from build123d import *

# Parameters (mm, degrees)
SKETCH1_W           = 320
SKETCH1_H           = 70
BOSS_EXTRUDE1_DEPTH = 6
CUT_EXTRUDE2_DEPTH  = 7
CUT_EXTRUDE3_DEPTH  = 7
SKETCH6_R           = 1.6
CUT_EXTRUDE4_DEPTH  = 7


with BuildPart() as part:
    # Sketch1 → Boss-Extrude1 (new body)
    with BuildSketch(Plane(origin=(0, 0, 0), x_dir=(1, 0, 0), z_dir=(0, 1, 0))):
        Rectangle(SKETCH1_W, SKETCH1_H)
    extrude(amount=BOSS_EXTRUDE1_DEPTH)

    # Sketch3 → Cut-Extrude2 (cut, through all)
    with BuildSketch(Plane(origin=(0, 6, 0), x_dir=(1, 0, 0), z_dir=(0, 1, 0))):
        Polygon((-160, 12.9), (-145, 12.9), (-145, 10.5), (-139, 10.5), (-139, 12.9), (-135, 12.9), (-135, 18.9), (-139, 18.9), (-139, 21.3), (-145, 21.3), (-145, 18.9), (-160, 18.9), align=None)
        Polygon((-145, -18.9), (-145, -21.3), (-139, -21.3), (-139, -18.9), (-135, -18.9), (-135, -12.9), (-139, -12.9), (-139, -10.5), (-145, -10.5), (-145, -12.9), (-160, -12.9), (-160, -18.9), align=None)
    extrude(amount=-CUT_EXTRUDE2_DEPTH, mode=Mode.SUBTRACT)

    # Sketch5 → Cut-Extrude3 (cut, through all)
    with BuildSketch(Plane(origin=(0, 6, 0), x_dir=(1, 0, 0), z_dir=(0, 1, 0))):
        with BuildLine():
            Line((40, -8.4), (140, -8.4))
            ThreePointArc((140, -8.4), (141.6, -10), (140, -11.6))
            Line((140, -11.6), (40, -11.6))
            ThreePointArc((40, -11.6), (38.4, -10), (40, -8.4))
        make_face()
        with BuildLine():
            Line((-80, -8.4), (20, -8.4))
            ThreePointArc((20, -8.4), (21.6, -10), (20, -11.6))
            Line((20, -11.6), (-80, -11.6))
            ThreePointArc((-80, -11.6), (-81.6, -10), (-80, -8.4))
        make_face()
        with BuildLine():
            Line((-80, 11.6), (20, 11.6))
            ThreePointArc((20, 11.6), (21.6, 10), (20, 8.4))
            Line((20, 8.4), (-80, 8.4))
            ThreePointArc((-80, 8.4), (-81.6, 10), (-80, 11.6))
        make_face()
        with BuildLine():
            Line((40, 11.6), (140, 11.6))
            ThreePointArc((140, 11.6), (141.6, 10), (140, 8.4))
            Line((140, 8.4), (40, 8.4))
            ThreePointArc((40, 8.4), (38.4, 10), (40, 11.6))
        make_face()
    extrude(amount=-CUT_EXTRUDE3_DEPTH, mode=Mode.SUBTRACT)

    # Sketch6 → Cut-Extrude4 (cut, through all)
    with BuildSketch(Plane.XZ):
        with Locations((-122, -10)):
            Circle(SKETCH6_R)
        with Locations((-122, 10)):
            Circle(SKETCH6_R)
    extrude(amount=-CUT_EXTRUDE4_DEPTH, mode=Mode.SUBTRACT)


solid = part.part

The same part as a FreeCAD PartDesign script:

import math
import FreeCAD as App
import Part
import Sketcher
Q = App.Units.Quantity

doc = App.newDocument("Part")
body = doc.addObject("PartDesign::Body", "Body")

# Sketch on XZ plane
sketch1 = body.newObject("Sketcher::SketchObject", "Sketch")
sketch1.AttachmentSupport = (doc.getObject("XZ_Plane"), [""])
sketch1.MapMode = "FlatFace"
sketch1.addGeometry(Part.LineSegment(App.Vector(-160, -35, 0), App.Vector(-160, 35, 0)), False)
sketch1.addGeometry(Part.LineSegment(App.Vector(-160, 35, 0), App.Vector(160, 35, 0)), False)
sketch1.addGeometry(Part.LineSegment(App.Vector(160, 35, 0), App.Vector(160, -35, 0)), False)
sketch1.addGeometry(Part.LineSegment(App.Vector(160, -35, 0), App.Vector(-160, -35, 0)), False)
sketch1.addConstraint(Sketcher.Constraint("Coincident", 0, 2, 1, 1))
sketch1.addConstraint(Sketcher.Constraint("Coincident", 1, 2, 2, 1))
sketch1.addConstraint(Sketcher.Constraint("Coincident", 2, 2, 3, 1))
sketch1.addConstraint(Sketcher.Constraint("Coincident", 3, 2, 0, 1))
sketch1.addConstraint(Sketcher.Constraint("Vertical", 0))
sketch1.addConstraint(Sketcher.Constraint("Horizontal", 1))
sketch1.addConstraint(Sketcher.Constraint("Vertical", 2))
sketch1.addConstraint(Sketcher.Constraint("Horizontal", 3))
sketch1.addConstraint(Sketcher.Constraint("Symmetric", 0, 2, 2, 2, -1, 1))
sketch1.addConstraint(Sketcher.Constraint("DistanceX", 1, 1, 1, 2, Q("320 mm")))
sketch1.addConstraint(Sketcher.Constraint("DistanceY", 0, 1, 0, 2, Q("70 mm")))
pad1 = body.newObject("PartDesign::Pad", "Pad")
pad1.Profile = sketch1
pad1.Length = 6
pad1.Reversed = True

# Sketch on XZ plane
sketch2 = body.newObject("Sketcher::SketchObject", "Sketch001")
sketch2.AttachmentSupport = (doc.getObject("XZ_Plane"), [""])
sketch2.MapMode = "FlatFace"
sketch2.AttachmentOffset = App.Placement(App.Vector(0, 0, -6), App.Rotation())
sketch2.addGeometry(Part.LineSegment(App.Vector(-160, -12.9, 0), App.Vector(-145, -12.9, 0)), False)
sketch2.addGeometry(Part.LineSegment(App.Vector(-145, -12.9, 0), App.Vector(-145, -10.5, 0)), False)
sketch2.addGeometry(Part.LineSegment(App.Vector(-145, -10.5, 0), App.Vector(-139, -10.5, 0)), False)
sketch2.addGeometry(Part.LineSegment(App.Vector(-139, -10.5, 0), App.Vector(-139, -12.9, 0)), False)
sketch2.addGeometry(Part.LineSegment(App.Vector(-139, -12.9, 0), App.Vector(-135, -12.9, 0)), False)
sketch2.addGeometry(Part.LineSegment(App.Vector(-135, -12.9, 0), App.Vector(-135, -18.9, 0)), False)
sketch2.addGeometry(Part.LineSegment(App.Vector(-135, -18.9, 0), App.Vector(-139, -18.9, 0)), False)
sketch2.addGeometry(Part.LineSegment(App.Vector(-139, -18.9, 0), App.Vector(-139, -21.3, 0)), False)
sketch2.addGeometry(Part.LineSegment(App.Vector(-139, -21.3, 0), App.Vector(-145, -21.3, 0)), False)
sketch2.addGeometry(Part.LineSegment(App.Vector(-145, -21.3, 0), App.Vector(-145, -18.9, 0)), False)
sketch2.addGeometry(Part.LineSegment(App.Vector(-145, -18.9, 0), App.Vector(-160, -18.9, 0)), False)
sketch2.addGeometry(Part.LineSegment(App.Vector(-160, -18.9, 0), App.Vector(-160, -12.9, 0)), False)
sketch2.addGeometry(Part.LineSegment(App.Vector(-145, 18.9, 0), App.Vector(-145, 21.3, 0)), False)
sketch2.addGeometry(Part.LineSegment(App.Vector(-145, 21.3, 0), App.Vector(-139, 21.3, 0)), False)
sketch2.addGeometry(Part.LineSegment(App.Vector(-139, 21.3, 0), App.Vector(-139, 18.9, 0)), False)
sketch2.addGeometry(Part.LineSegment(App.Vector(-139, 18.9, 0), App.Vector(-135, 18.9, 0)), False)
sketch2.addGeometry(Part.LineSegment(App.Vector(-135, 18.9, 0), App.Vector(-135, 12.9, 0)), False)
sketch2.addGeometry(Part.LineSegment(App.Vector(-135, 12.9, 0), App.Vector(-139, 12.9, 0)), False)
sketch2.addGeometry(Part.LineSegment(App.Vector(-139, 12.9, 0), App.Vector(-139, 10.5, 0)), False)
sketch2.addGeometry(Part.LineSegment(App.Vector(-139, 10.5, 0), App.Vector(-145, 10.5, 0)), False)
sketch2.addGeometry(Part.LineSegment(App.Vector(-145, 10.5, 0), App.Vector(-145, 12.9, 0)), False)
sketch2.addGeometry(Part.LineSegment(App.Vector(-145, 12.9, 0), App.Vector(-160, 12.9, 0)), False)
sketch2.addGeometry(Part.LineSegment(App.Vector(-160, 12.9, 0), App.Vector(-160, 18.9, 0)), False)
sketch2.addGeometry(Part.LineSegment(App.Vector(-160, 18.9, 0), App.Vector(-145, 18.9, 0)), False)
sketch2.addConstraint(Sketcher.Constraint("Coincident", 0, 2, 1, 1))
sketch2.addConstraint(Sketcher.Constraint("Coincident", 1, 2, 2, 1))
sketch2.addConstraint(Sketcher.Constraint("Coincident", 2, 2, 3, 1))
sketch2.addConstraint(Sketcher.Constraint("Coincident", 3, 2, 4, 1))
sketch2.addConstraint(Sketcher.Constraint("Coincident", 4, 2, 5, 1))
sketch2.addConstraint(Sketcher.Constraint("Coincident", 5, 2, 6, 1))
sketch2.addConstraint(Sketcher.Constraint("Coincident", 6, 2, 7, 1))
sketch2.addConstraint(Sketcher.Constraint("Coincident", 7, 2, 8, 1))
sketch2.addConstraint(Sketcher.Constraint("Coincident", 8, 2, 9, 1))
sketch2.addConstraint(Sketcher.Constraint("Coincident", 9, 2, 10, 1))
sketch2.addConstraint(Sketcher.Constraint("Coincident", 10, 2, 11, 1))
sketch2.addConstraint(Sketcher.Constraint("Coincident", 11, 2, 0, 1))
sketch2.addConstraint(Sketcher.Constraint("Coincident", 12, 2, 13, 1))
sketch2.addConstraint(Sketcher.Constraint("Coincident", 13, 2, 14, 1))
sketch2.addConstraint(Sketcher.Constraint("Coincident", 14, 2, 15, 1))
sketch2.addConstraint(Sketcher.Constraint("Coincident", 15, 2, 16, 1))
sketch2.addConstraint(Sketcher.Constraint("Coincident", 16, 2, 17, 1))
sketch2.addConstraint(Sketcher.Constraint("Coincident", 17, 2, 18, 1))
sketch2.addConstraint(Sketcher.Constraint("Coincident", 18, 2, 19, 1))
sketch2.addConstraint(Sketcher.Constraint("Coincident", 19, 2, 20, 1))
sketch2.addConstraint(Sketcher.Constraint("Coincident", 20, 2, 21, 1))
sketch2.addConstraint(Sketcher.Constraint("Coincident", 21, 2, 22, 1))
sketch2.addConstraint(Sketcher.Constraint("Coincident", 22, 2, 23, 1))
sketch2.addConstraint(Sketcher.Constraint("Coincident", 23, 2, 12, 1))
sketch2.addConstraint(Sketcher.Constraint("Horizontal", 0))
sketch2.addConstraint(Sketcher.Constraint("Vertical", 1))
sketch2.addConstraint(Sketcher.Constraint("Horizontal", 2))
sketch2.addConstraint(Sketcher.Constraint("Vertical", 3))
sketch2.addConstraint(Sketcher.Constraint("Horizontal", 4))
sketch2.addConstraint(Sketcher.Constraint("Vertical", 5))
sketch2.addConstraint(Sketcher.Constraint("Horizontal", 6))
sketch2.addConstraint(Sketcher.Constraint("Vertical", 7))
sketch2.addConstraint(Sketcher.Constraint("Horizontal", 8))
sketch2.addConstraint(Sketcher.Constraint("Vertical", 9))
sketch2.addConstraint(Sketcher.Constraint("Horizontal", 10))
sketch2.addConstraint(Sketcher.Constraint("Vertical", 11))
sketch2.addConstraint(Sketcher.Constraint("Vertical", 12))
sketch2.addConstraint(Sketcher.Constraint("Horizontal", 13))
sketch2.addConstraint(Sketcher.Constraint("Vertical", 14))
sketch2.addConstraint(Sketcher.Constraint("Horizontal", 15))
sketch2.addConstraint(Sketcher.Constraint("Vertical", 16))
sketch2.addConstraint(Sketcher.Constraint("Horizontal", 17))
sketch2.addConstraint(Sketcher.Constraint("Vertical", 18))
sketch2.addConstraint(Sketcher.Constraint("Horizontal", 19))
sketch2.addConstraint(Sketcher.Constraint("Vertical", 20))
sketch2.addConstraint(Sketcher.Constraint("Horizontal", 21))
sketch2.addConstraint(Sketcher.Constraint("Vertical", 22))
sketch2.addConstraint(Sketcher.Constraint("Horizontal", 23))
sketch2.addConstraint(Sketcher.Constraint("Symmetric", 8, 2, 12, 2, -1))
sketch2.addConstraint(Sketcher.Constraint("Symmetric", 6, 2, 14, 2, -1))
sketch2.addConstraint(Sketcher.Constraint("Symmetric", 4, 2, 16, 2, -1))
sketch2.addConstraint(Sketcher.Constraint("Symmetric", 2, 2, 18, 2, -1))
sketch2.addConstraint(Sketcher.Constraint("Symmetric", 0, 2, 20, 2, -1))
sketch2.addConstraint(Sketcher.Constraint("Symmetric", 10, 2, 22, 2, -1))
sketch2.addConstraint(Sketcher.Constraint("Horizontal", 0, 2, 3, 2))
sketch2.addConstraint(Sketcher.Constraint("Horizontal", 6, 2, 9, 2))
sketch2.addConstraint(Sketcher.Constraint("Vertical", 3, 2, 6, 2))
sketch2.addConstraint(Sketcher.Constraint("Vertical", 1, 2, 8, 2))
sketch2.addConstraint(Sketcher.Constraint("Equal", 19, 5))
sketch2.addConstraint(Sketcher.Constraint("Equal", 3, 7))
sketch2.addConstraint(Sketcher.Constraint("DistanceX", 0, 1, 0, 2, Q("15 mm")))
sketch2.addConstraint(Sketcher.Constraint("DistanceX", 2, 1, 2, 2, Q("6 mm")))
sketch2.addConstraint(Sketcher.Constraint("DistanceX", 4, 1, 4, 2, Q("4 mm")))
sketch2.addConstraint(Sketcher.Constraint("DistanceY", 1, 1, 1, 2, Q("2.4 mm")))
sketch2.addConstraint(Sketcher.Constraint("DistanceX", 0, 2, -1, 1, Q("145 mm")))
sketch2.addConstraint(Sketcher.Constraint("DistanceY", 0, 2, -1, 1, Q("12.9 mm")))
pocket1 = body.newObject("PartDesign::Pocket", "Pocket")
pocket1.Profile = sketch2
pocket1.Type = "ThroughAll"
pocket1.Reversed = True

# Sketch on XZ plane
sketch3 = body.newObject("Sketcher::SketchObject", "Sketch002")
sketch3.AttachmentSupport = (doc.getObject("XZ_Plane"), [""])
sketch3.MapMode = "FlatFace"
sketch3.AttachmentOffset = App.Placement(App.Vector(0, 0, -6), App.Rotation())
sketch3.addGeometry(Part.LineSegment(App.Vector(140, 8.4, 0), App.Vector(40, 8.4, 0)), False)
sketch3.addGeometry(Part.ArcOfCircle(Part.Circle(App.Vector(40, 10, 0), App.Vector(0, 0, 1), 1.6), math.radians(90), math.radians(270)), False)
sketch3.addGeometry(Part.LineSegment(App.Vector(40, 11.6, 0), App.Vector(140, 11.6, 0)), False)
sketch3.addGeometry(Part.ArcOfCircle(Part.Circle(App.Vector(140, 10, 0), App.Vector(0, 0, 1), 1.6), math.radians(-90), math.radians(90)), False)
sketch3.addGeometry(Part.LineSegment(App.Vector(20, 8.4, 0), App.Vector(-80, 8.4, 0)), False)
sketch3.addGeometry(Part.ArcOfCircle(Part.Circle(App.Vector(-80, 10, 0), App.Vector(0, 0, 1), 1.6), math.radians(90), math.radians(270)), False)
sketch3.addGeometry(Part.LineSegment(App.Vector(-80, 11.6, 0), App.Vector(20, 11.6, 0)), False)
sketch3.addGeometry(Part.ArcOfCircle(Part.Circle(App.Vector(20, 10, 0), App.Vector(0, 0, 1), 1.6), math.radians(-90), math.radians(90)), False)
sketch3.addGeometry(Part.LineSegment(App.Vector(20, -11.6, 0), App.Vector(-80, -11.6, 0)), False)
sketch3.addGeometry(Part.ArcOfCircle(Part.Circle(App.Vector(-80, -10, 0), App.Vector(0, 0, 1), 1.6), math.radians(90), math.radians(270)), False)
sketch3.addGeometry(Part.LineSegment(App.Vector(-80, -8.4, 0), App.Vector(20, -8.4, 0)), False)
sketch3.addGeometry(Part.ArcOfCircle(Part.Circle(App.Vector(20, -10, 0), App.Vector(0, 0, 1), 1.6), math.radians(-90), math.radians(90)), False)
sketch3.addGeometry(Part.LineSegment(App.Vector(140, -11.6, 0), App.Vector(40, -11.6, 0)), False)
sketch3.addGeometry(Part.ArcOfCircle(Part.Circle(App.Vector(40, -10, 0), App.Vector(0, 0, 1), 1.6), math.radians(90), math.radians(270)), False)
sketch3.addGeometry(Part.LineSegment(App.Vector(40, -8.4, 0), App.Vector(140, -8.4, 0)), False)
sketch3.addGeometry(Part.ArcOfCircle(Part.Circle(App.Vector(140, -10, 0), App.Vector(0, 0, 1), 1.6), math.radians(-90), math.radians(90)), False)
sketch3.addConstraint(Sketcher.Constraint("Tangent", 0, 2, 1, 2))
sketch3.addConstraint(Sketcher.Constraint("Tangent", 1, 1, 2, 1))
sketch3.addConstraint(Sketcher.Constraint("Tangent", 2, 2, 3, 2))
sketch3.addConstraint(Sketcher.Constraint("Tangent", 3, 1, 0, 1))
sketch3.addConstraint(Sketcher.Constraint("Tangent", 4, 2, 5, 2))
sketch3.addConstraint(Sketcher.Constraint("Tangent", 5, 1, 6, 1))
sketch3.addConstraint(Sketcher.Constraint("Tangent", 6, 2, 7, 2))
sketch3.addConstraint(Sketcher.Constraint("Tangent", 7, 1, 4, 1))
sketch3.addConstraint(Sketcher.Constraint("Tangent", 8, 2, 9, 2))
sketch3.addConstraint(Sketcher.Constraint("Tangent", 9, 1, 10, 1))
sketch3.addConstraint(Sketcher.Constraint("Tangent", 10, 2, 11, 2))
sketch3.addConstraint(Sketcher.Constraint("Tangent", 11, 1, 8, 1))
sketch3.addConstraint(Sketcher.Constraint("Tangent", 12, 2, 13, 2))
sketch3.addConstraint(Sketcher.Constraint("Tangent", 13, 1, 14, 1))
sketch3.addConstraint(Sketcher.Constraint("Tangent", 14, 2, 15, 2))
sketch3.addConstraint(Sketcher.Constraint("Tangent", 15, 1, 12, 1))
sketch3.addConstraint(Sketcher.Constraint("Horizontal", 0))
sketch3.addConstraint(Sketcher.Constraint("Horizontal", 2))
sketch3.addConstraint(Sketcher.Constraint("Horizontal", 4))
sketch3.addConstraint(Sketcher.Constraint("Horizontal", 6))
sketch3.addConstraint(Sketcher.Constraint("Horizontal", 8))
sketch3.addConstraint(Sketcher.Constraint("Horizontal", 10))
sketch3.addConstraint(Sketcher.Constraint("Horizontal", 12))
sketch3.addConstraint(Sketcher.Constraint("Horizontal", 14))
sketch3.addConstraint(Sketcher.Constraint("Equal", 3, 5))
sketch3.addConstraint(Sketcher.Constraint("Equal", 7, 9))
sketch3.addConstraint(Sketcher.Constraint("Equal", 11, 13))
sketch3.addConstraint(Sketcher.Constraint("Symmetric", 5, 3, 9, 3, -1))
sketch3.addConstraint(Sketcher.Constraint("Symmetric", 1, 3, 13, 3, -1))
sketch3.addConstraint(Sketcher.Constraint("Horizontal", 3, 3, 5, 3))
sketch3.addConstraint(Sketcher.Constraint("Vertical", 7, 3, 11, 3))
sketch3.addConstraint(Sketcher.Constraint("Vertical", 3, 3, 15, 3))
sketch3.addConstraint(Sketcher.Constraint("Equal", 2, 4))
sketch3.addConstraint(Sketcher.Constraint("Radius", 1, Q("1.6 mm")))
sketch3.addConstraint(Sketcher.Constraint("DistanceX", 0, 2, 0, 1, Q("100 mm")))
sketch3.addConstraint(Sketcher.Constraint("DistanceX", -1, 1, 1, 3, Q("40 mm")))
sketch3.addConstraint(Sketcher.Constraint("DistanceY", -1, 1, 1, 3, Q("10 mm")))
sketch3.addConstraint(Sketcher.Constraint("DistanceX", 5, 3, -1, 1, Q("80 mm")))
pocket2 = body.newObject("PartDesign::Pocket", "Pocket001")
pocket2.Profile = sketch3
pocket2.Type = "ThroughAll"
pocket2.Reversed = True

# Sketch on XZ plane
sketch4 = body.newObject("Sketcher::SketchObject", "Sketch003")
sketch4.AttachmentSupport = (doc.getObject("XZ_Plane"), [""])
sketch4.MapMode = "FlatFace"
sketch4.addGeometry(Part.Circle(App.Vector(-122, -10, 0), App.Vector(0, 0, 1), 1.6), False)
sketch4.addGeometry(Part.Circle(App.Vector(-122, 10, 0), App.Vector(0, 0, 1), 1.6), False)
sketch4.addConstraint(Sketcher.Constraint("Equal", 0, 1))
sketch4.addConstraint(Sketcher.Constraint("Symmetric", 0, 3, 1, 3, -1))
sketch4.addConstraint(Sketcher.Constraint("Diameter", 0, Q("3.2 mm")))
sketch4.addConstraint(Sketcher.Constraint("DistanceX", 0, 3, -1, 1, Q("122 mm")))
sketch4.addConstraint(Sketcher.Constraint("DistanceY", 0, 3, -1, 1, Q("10 mm")))
pocket3 = body.newObject("PartDesign::Pocket", "Pocket002")
pocket3.Profile = sketch4
pocket3.Type = "ThroughAll"

doc.recompute()
